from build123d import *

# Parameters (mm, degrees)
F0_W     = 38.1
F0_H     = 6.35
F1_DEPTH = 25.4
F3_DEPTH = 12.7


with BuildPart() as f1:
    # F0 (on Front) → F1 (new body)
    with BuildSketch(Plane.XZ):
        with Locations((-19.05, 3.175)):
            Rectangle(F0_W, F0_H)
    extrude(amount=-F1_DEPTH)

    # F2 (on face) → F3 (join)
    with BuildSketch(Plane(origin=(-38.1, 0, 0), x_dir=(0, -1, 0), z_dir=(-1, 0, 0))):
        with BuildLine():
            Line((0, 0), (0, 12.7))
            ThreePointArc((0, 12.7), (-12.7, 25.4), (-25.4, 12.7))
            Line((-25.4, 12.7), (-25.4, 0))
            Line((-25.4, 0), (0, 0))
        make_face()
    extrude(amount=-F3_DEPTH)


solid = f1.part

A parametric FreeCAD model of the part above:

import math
import FreeCAD as App
import Part
import Sketcher
from FreeCAD import Vector
Q = App.Units.Quantity

doc = App.newDocument("Part")
body = doc.addObject("PartDesign::Body", "Body")

# Sketch on XZ plane
sketch1 = body.newObject("Sketcher::SketchObject", "Sketch")
sketch1.AttachmentSupport = (doc.getObject("XZ_Plane"), [""])
sketch1.MapMode = "FlatFace"
sketch1.addGeometry([
    Part.LineSegment(Vector(-38, 6, 0), Vector(-38, 0, 0)),
    Part.LineSegment(Vector(-38, 0, 0), Vector(0, 0, 0)),
    Part.LineSegment(Vector(0, 0, 0), Vector(0, 6, 0)),
    Part.LineSegment(Vector(0, 6, 0), Vector(-38, 6, 0)),
], False)
sketch1.addConstraint([
    Sketcher.Constraint("Coincident", 0, 2, 1, 1),
    Sketcher.Constraint("Coincident", 1, 2, 2, 1),
    Sketcher.Constraint("Coincident", 2, 2, 3, 1),
    Sketcher.Constraint("Coincident", 3, 2, 0, 1),
    Sketcher.Constraint("Vertical", 0),
    Sketcher.Constraint("Horizontal", 1),
    Sketcher.Constraint("Vertical", 2),
    Sketcher.Constraint("Horizontal", 3),
    Sketcher.Constraint("Coincident", 1, 2, -1, 1),
    Sketcher.Constraint("DistanceX", 1, 1, 1, 2, Q("1.5 in")),
    Sketcher.Constraint("DistanceY", 0, 2, 0, 1, Q("0.25 in")),
])
pad1 = body.newObject("PartDesign::Pad", "Pad")
pad1.Profile = sketch1
pad1.Length = Q("1 in")
pad1.Reversed = True

# Sketch on YZ plane
sketch2 = body.newObject("Sketcher::SketchObject", "Sketch001")
sketch2.AttachmentSupport = (doc.getObject("YZ_Plane"), [""])
sketch2.MapMode = "FlatFace"
sketch2.AttachmentOffset = App.Placement(Vector(0, 0, -1.5 * 25.4), App.Rotation())
sketch2.addGeometry([
    Part.LineSegment(Vector(0, 0, 0), Vector(0, 13, 0)),
    Part.ArcOfCircle(Part.Circle(Vector(13, 13, 0), Vector(0, 0, 1), 13), math.radians(0), math.radians(180)),
    Part.LineSegment(Vector(25, 13, 0), Vector(25, 0, 0)),
    Part.LineSegment(Vector(25, 0, 0), Vector(0, 0, 0)),
], False)
sketch2.addConstraint([
    Sketcher.Constraint("Tangent", 0, 2, 1, 2),
    Sketcher.Constraint("Tangent", 1, 1, 2, 1),
    Sketcher.Constraint("Coincident", 2, 2, 3, 1),
    Sketcher.Constraint("Coincident", 3, 2, 0, 1),
    Sketcher.Constraint("Vertical", 0),
    Sketcher.Constraint("Vertical", 2),
    Sketcher.Constraint("Horizontal", 3),
    Sketcher.Constraint("Coincident", 3, 2, -1, 1),
    Sketcher.Constraint("Radius", 1, Q("0.5 in")),
    Sketcher.Constraint("DistanceY", 0, 1, 0, 2, Q("0.5 in")),
])
pad2 = body.newObject("PartDesign::Pad", "Pad001")
pad2.Profile = sketch2
pad2.Length = Q("0.5 in")

doc.recompute()
